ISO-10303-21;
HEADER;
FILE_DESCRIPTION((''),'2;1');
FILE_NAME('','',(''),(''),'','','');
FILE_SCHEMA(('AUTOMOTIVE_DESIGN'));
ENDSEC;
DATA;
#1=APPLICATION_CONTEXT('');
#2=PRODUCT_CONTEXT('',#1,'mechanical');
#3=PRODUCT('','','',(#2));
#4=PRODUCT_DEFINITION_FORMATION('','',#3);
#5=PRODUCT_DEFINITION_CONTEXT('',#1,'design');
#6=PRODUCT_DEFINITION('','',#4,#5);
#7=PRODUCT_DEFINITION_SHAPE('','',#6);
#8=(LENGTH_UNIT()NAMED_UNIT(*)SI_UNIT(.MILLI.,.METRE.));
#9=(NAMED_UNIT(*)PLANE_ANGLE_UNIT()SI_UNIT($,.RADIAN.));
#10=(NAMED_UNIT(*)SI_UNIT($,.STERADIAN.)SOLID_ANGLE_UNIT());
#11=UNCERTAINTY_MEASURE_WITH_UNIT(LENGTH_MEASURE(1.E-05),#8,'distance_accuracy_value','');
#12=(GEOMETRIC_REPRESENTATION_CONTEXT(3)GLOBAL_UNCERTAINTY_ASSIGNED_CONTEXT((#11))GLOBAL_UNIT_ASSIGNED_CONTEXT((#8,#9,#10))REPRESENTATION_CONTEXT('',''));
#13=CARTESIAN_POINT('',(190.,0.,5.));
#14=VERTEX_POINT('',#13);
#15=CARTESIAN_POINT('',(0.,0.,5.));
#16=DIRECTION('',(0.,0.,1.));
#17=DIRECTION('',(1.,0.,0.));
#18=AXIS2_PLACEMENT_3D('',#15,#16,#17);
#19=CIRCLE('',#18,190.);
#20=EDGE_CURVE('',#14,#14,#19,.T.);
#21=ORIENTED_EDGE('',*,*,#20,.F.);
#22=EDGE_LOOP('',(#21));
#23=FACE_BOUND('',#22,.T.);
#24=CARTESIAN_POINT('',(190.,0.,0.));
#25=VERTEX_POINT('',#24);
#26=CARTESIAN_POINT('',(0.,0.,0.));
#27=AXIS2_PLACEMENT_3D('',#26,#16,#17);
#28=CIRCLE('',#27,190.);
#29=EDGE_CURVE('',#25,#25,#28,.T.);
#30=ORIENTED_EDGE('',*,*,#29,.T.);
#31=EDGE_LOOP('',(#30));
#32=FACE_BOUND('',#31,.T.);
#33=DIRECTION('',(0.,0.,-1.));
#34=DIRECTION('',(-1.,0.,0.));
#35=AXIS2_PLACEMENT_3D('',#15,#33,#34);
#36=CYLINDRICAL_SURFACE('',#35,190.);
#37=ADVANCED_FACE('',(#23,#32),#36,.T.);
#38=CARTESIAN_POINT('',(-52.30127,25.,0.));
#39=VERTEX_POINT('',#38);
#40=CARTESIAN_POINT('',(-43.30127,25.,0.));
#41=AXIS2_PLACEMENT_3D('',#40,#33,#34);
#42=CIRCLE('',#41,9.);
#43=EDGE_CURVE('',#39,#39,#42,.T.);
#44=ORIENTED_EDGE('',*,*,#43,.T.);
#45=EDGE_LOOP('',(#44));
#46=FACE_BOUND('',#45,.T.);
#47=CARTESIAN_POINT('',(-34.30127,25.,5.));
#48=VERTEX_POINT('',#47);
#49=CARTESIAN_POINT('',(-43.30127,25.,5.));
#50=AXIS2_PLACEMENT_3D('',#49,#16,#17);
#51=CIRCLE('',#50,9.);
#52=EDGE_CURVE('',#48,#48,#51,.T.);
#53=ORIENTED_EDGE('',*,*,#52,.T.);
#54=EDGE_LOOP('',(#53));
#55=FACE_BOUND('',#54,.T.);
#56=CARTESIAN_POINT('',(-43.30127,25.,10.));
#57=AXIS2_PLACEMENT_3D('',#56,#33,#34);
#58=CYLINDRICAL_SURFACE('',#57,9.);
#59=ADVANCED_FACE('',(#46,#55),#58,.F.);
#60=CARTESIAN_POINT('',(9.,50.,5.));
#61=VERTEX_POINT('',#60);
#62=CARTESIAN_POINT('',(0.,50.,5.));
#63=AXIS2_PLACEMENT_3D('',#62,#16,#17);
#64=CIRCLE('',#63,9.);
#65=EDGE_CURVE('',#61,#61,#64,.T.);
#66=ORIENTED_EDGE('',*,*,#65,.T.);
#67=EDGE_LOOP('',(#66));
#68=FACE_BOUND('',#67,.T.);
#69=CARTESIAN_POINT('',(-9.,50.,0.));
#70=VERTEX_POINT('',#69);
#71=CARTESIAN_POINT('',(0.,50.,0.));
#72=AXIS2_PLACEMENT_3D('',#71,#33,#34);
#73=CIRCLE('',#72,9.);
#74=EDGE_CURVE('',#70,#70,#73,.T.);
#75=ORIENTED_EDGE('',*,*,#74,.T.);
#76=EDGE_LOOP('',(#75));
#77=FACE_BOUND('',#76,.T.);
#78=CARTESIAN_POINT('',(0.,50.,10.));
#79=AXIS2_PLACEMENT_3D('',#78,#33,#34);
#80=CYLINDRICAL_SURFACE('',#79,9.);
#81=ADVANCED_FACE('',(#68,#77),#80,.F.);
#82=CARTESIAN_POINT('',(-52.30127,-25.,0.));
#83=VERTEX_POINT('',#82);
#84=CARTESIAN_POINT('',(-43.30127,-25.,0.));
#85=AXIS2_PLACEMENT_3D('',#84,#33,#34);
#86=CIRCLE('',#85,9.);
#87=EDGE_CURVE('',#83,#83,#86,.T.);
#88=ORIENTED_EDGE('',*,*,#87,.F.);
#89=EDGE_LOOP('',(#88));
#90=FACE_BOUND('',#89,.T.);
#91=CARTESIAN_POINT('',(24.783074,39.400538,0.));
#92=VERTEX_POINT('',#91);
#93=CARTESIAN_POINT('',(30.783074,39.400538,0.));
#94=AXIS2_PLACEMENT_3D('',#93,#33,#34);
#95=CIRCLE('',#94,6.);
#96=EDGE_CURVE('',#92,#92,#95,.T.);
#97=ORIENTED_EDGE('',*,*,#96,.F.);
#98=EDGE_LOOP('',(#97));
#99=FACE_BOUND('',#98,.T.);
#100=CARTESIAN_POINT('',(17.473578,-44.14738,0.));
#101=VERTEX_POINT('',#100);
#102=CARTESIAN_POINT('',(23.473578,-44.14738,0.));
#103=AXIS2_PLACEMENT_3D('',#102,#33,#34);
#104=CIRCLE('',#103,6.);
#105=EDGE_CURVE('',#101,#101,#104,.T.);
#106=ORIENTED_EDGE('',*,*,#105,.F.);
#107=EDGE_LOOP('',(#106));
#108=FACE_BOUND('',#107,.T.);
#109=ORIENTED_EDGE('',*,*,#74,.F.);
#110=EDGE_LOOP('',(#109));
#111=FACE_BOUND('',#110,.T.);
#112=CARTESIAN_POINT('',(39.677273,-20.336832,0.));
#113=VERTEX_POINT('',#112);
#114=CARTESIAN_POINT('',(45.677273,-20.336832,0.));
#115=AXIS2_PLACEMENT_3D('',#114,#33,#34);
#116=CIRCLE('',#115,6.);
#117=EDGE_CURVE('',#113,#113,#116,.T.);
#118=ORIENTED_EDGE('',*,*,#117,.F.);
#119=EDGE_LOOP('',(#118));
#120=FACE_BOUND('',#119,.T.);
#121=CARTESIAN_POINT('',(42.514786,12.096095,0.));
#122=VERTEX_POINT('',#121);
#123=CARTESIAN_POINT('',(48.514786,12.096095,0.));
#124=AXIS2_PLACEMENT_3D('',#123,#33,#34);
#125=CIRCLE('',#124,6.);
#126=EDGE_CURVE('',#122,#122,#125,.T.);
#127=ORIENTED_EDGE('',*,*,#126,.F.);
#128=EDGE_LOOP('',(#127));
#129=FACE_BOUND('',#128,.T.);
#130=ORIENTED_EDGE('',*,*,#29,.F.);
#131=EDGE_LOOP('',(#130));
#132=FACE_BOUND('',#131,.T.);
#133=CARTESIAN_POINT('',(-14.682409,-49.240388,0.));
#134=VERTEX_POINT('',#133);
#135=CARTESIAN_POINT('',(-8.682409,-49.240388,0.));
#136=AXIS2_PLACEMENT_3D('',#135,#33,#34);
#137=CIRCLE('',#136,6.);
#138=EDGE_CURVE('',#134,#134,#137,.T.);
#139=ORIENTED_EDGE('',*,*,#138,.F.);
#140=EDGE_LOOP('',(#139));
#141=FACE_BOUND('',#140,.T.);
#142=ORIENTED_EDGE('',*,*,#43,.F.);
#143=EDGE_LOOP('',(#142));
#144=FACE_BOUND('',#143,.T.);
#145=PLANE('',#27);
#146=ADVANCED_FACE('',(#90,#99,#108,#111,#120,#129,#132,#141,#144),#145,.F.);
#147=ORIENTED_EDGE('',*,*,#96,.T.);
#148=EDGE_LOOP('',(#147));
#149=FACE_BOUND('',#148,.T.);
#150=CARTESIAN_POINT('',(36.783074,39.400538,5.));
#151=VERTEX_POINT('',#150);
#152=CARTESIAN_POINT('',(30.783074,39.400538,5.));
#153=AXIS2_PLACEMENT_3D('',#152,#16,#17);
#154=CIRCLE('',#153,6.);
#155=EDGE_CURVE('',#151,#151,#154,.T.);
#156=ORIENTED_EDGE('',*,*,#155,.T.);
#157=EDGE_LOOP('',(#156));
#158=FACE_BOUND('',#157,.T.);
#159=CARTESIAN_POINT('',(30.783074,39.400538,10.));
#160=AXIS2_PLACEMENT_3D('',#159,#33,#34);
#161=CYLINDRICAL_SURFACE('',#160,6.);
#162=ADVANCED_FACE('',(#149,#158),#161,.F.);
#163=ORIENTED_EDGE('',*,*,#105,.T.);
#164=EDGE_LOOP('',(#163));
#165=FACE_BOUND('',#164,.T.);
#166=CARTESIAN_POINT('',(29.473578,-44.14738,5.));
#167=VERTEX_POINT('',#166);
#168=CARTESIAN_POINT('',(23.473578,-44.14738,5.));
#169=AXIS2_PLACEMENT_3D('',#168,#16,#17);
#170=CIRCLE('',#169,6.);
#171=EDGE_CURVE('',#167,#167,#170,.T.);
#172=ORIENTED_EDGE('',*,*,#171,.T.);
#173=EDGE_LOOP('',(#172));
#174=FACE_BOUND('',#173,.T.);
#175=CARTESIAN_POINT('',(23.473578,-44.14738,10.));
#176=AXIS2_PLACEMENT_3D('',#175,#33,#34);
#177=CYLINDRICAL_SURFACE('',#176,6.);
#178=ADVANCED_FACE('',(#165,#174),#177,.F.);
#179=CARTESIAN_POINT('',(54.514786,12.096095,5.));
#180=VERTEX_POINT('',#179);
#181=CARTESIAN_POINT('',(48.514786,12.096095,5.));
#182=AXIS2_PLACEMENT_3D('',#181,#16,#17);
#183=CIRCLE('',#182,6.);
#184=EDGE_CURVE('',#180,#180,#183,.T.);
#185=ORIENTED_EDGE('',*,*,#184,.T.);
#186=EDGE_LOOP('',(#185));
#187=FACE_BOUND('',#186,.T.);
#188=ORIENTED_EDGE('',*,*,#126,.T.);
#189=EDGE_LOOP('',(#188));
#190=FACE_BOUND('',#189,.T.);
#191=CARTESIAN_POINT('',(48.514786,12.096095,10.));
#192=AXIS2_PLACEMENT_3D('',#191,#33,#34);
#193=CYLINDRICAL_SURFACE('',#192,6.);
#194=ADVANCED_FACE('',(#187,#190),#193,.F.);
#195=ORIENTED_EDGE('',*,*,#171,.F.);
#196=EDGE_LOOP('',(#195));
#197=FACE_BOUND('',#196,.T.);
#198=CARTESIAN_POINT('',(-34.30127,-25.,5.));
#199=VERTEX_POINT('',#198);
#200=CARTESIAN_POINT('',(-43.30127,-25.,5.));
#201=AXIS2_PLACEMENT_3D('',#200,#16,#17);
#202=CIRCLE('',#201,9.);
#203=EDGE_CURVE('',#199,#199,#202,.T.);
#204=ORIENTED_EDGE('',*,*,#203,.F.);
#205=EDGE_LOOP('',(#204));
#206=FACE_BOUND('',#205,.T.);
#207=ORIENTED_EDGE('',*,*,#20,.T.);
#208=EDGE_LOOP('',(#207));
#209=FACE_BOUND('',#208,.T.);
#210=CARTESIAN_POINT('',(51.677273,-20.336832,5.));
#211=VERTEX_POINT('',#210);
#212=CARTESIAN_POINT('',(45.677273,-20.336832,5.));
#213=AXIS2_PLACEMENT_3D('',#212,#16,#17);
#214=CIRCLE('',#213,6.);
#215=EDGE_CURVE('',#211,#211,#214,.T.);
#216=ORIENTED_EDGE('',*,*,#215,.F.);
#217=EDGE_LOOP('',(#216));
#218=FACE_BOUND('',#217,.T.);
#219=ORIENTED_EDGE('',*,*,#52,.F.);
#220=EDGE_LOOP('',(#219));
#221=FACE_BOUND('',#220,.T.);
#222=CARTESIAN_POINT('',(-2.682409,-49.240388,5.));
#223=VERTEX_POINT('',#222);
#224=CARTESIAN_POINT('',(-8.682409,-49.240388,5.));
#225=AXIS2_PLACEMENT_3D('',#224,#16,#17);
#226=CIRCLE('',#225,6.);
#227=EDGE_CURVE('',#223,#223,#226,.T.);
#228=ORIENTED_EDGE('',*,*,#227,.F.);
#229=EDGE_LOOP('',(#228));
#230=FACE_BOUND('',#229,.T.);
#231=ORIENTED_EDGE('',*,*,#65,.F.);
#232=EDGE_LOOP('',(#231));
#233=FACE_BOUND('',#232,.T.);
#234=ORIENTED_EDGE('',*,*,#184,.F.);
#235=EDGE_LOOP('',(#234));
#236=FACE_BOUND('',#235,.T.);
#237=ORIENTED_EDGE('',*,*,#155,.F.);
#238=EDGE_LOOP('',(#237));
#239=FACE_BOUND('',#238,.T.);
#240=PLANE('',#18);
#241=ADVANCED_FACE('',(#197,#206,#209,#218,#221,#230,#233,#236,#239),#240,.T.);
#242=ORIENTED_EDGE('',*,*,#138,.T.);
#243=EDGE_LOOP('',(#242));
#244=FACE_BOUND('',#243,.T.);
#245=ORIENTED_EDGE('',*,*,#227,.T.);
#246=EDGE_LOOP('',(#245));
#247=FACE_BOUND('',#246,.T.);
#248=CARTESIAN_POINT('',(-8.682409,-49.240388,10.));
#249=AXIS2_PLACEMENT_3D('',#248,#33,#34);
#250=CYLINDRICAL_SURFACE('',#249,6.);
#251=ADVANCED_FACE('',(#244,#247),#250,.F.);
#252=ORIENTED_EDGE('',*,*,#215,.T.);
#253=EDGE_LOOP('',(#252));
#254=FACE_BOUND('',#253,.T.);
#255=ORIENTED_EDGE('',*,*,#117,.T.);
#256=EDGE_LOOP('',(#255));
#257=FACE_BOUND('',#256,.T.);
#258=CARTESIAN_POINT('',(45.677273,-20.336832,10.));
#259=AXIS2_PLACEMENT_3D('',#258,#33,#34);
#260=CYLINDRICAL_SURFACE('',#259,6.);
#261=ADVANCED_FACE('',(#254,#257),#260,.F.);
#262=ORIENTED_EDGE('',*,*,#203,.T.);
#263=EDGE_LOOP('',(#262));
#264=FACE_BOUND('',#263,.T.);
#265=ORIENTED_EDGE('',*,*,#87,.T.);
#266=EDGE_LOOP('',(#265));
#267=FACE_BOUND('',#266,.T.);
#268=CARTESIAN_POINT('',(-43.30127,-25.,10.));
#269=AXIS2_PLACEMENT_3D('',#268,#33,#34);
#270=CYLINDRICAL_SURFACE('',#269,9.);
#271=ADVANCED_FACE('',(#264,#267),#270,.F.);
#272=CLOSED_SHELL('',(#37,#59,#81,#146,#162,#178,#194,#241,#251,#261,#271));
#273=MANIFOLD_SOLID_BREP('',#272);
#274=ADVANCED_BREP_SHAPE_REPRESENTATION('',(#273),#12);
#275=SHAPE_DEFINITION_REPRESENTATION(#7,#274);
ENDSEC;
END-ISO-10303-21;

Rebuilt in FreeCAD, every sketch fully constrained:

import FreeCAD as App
import Part
import Sketcher

V = App.Vector

doc = App.newDocument("Part")
body = doc.addObject("PartDesign::Body", "Body")

# Sketch on XY plane
sketch1 = body.newObject("Sketcher::SketchObject", "Sketch")
sketch1.AttachmentSupport = (doc.getObject("XY_Plane"), [""])
sketch1.MapMode = "FlatFace"
sketch1.addGeometry(Part.Circle(V(0, 0, 0), V(0, 0, 1), 190), False)
sketch1.addConstraint(Sketcher.Constraint("Coincident", 0, 3, -1, 1))
sketch1.addConstraint(Sketcher.Constraint("Diameter", 0, 380.0))
pad1 = body.newObject("PartDesign::Pad", "Pad")
pad1.Profile = sketch1
pad1.Length = 5

# Sketch on XY plane
sketch2 = body.newObject("Sketcher::SketchObject", "Sketch001")
sketch2.AttachmentSupport = (doc.getObject("XY_Plane"), [""])
sketch2.MapMode = "FlatFace"
sketch2.addGeometry(Part.Circle(V(0, 50, 0), V(0, 0, 1), 9), False)
sketch2.addGeometry(Part.Circle(V(-43, 25, 0), V(0, 0, 1), 9), False)
sketch2.addGeometry(Part.Circle(V(-43, -25, 0), V(0, 0, 1), 9), False)
sketch2.addGeometry(Part.Circle(V(31, 39, 0), V(0, 0, 1), 6), False)
sketch2.addGeometry(Part.Circle(V(49, 12, 0), V(0, 0, 1), 6), False)
sketch2.addGeometry(Part.Circle(V(46, -20, 0), V(0, 0, 1), 6), False)
sketch2.addGeometry(Part.Circle(V(23, -44, 0), V(0, 0, 1), 6), False)
sketch2.addGeometry(Part.Circle(V(-9, -49, 0), V(0, 0, 1), 6), False)
sketch2.addConstraint(Sketcher.Constraint("Equal", 0, 1))
sketch2.addConstraint(Sketcher.Constraint("Equal", 1, 2))
sketch2.addConstraint(Sketcher.Constraint("Equal", 3, 4))
sketch2.addConstraint(Sketcher.Constraint("Equal", 4, 5))
sketch2.addConstraint(Sketcher.Constraint("Equal", 5, 6))
sketch2.addConstraint(Sketcher.Constraint("Equal", 6, 7))
sketch2.addConstraint(Sketcher.Constraint("Symmetric", 1, 3, 2, 3, -1))
sketch2.addConstraint(Sketcher.Constraint("PointOnObject", 0, 3, -2))
sketch2.addConstraint(Sketcher.Constraint("Diameter", 0, 18.0))
sketch2.addConstraint(Sketcher.Constraint("Diameter", 3, 12.0))
sketch2.addConstraint(Sketcher.Constraint("DistanceY", -1, 1, 0, 3, 50.0))
sketch2.addConstraint(Sketcher.Constraint("DistanceY", -1, 1, 1, 3, 25.0))
sketch2.addConstraint(Sketcher.Constraint("DistanceX", 3, 3, 5, 3, 14.894199))
sketch2.addConstraint(Sketcher.Constraint("DistanceX", 1, 3, -1, 1, 43.30127))
sketch2.addConstraint(Sketcher.Constraint("DistanceX", -1, 1, 6, 3, 23.473578))
sketch2.addConstraint(Sketcher.Constraint("DistanceY", 6, 3, -1, 1, 44.14738))
sketch2.addConstraint(Sketcher.Constraint("DistanceX", 7, 3, -1, 1, 8.682409))
sketch2.addConstraint(Sketcher.Constraint("DistanceY", 5, 3, 3, 3, 59.73737))
sketch2.addConstraint(Sketcher.Constraint("DistanceX", 6, 3, 4, 3, 25.041208))
sketch2.addConstraint(Sketcher.Constraint("DistanceY", 7, 3, 6, 3, 5.093008))
sketch2.addConstraint(Sketcher.Constraint("DistanceX", 7, 3, 5, 3, 54.359682))
sketch2.addConstraint(Sketcher.Constraint("DistanceY", -1, 1, 3, 3, 39.400538))
sketch2.addConstraint(Sketcher.Constraint("DistanceY", -1, 1, 4, 3, 12.096095))
pocket1 = body.newObject("PartDesign::Pocket", "Pocket")
pocket1.Profile = sketch2
pocket1.Length = 10
pocket1.Reversed = True

doc.recompute()
